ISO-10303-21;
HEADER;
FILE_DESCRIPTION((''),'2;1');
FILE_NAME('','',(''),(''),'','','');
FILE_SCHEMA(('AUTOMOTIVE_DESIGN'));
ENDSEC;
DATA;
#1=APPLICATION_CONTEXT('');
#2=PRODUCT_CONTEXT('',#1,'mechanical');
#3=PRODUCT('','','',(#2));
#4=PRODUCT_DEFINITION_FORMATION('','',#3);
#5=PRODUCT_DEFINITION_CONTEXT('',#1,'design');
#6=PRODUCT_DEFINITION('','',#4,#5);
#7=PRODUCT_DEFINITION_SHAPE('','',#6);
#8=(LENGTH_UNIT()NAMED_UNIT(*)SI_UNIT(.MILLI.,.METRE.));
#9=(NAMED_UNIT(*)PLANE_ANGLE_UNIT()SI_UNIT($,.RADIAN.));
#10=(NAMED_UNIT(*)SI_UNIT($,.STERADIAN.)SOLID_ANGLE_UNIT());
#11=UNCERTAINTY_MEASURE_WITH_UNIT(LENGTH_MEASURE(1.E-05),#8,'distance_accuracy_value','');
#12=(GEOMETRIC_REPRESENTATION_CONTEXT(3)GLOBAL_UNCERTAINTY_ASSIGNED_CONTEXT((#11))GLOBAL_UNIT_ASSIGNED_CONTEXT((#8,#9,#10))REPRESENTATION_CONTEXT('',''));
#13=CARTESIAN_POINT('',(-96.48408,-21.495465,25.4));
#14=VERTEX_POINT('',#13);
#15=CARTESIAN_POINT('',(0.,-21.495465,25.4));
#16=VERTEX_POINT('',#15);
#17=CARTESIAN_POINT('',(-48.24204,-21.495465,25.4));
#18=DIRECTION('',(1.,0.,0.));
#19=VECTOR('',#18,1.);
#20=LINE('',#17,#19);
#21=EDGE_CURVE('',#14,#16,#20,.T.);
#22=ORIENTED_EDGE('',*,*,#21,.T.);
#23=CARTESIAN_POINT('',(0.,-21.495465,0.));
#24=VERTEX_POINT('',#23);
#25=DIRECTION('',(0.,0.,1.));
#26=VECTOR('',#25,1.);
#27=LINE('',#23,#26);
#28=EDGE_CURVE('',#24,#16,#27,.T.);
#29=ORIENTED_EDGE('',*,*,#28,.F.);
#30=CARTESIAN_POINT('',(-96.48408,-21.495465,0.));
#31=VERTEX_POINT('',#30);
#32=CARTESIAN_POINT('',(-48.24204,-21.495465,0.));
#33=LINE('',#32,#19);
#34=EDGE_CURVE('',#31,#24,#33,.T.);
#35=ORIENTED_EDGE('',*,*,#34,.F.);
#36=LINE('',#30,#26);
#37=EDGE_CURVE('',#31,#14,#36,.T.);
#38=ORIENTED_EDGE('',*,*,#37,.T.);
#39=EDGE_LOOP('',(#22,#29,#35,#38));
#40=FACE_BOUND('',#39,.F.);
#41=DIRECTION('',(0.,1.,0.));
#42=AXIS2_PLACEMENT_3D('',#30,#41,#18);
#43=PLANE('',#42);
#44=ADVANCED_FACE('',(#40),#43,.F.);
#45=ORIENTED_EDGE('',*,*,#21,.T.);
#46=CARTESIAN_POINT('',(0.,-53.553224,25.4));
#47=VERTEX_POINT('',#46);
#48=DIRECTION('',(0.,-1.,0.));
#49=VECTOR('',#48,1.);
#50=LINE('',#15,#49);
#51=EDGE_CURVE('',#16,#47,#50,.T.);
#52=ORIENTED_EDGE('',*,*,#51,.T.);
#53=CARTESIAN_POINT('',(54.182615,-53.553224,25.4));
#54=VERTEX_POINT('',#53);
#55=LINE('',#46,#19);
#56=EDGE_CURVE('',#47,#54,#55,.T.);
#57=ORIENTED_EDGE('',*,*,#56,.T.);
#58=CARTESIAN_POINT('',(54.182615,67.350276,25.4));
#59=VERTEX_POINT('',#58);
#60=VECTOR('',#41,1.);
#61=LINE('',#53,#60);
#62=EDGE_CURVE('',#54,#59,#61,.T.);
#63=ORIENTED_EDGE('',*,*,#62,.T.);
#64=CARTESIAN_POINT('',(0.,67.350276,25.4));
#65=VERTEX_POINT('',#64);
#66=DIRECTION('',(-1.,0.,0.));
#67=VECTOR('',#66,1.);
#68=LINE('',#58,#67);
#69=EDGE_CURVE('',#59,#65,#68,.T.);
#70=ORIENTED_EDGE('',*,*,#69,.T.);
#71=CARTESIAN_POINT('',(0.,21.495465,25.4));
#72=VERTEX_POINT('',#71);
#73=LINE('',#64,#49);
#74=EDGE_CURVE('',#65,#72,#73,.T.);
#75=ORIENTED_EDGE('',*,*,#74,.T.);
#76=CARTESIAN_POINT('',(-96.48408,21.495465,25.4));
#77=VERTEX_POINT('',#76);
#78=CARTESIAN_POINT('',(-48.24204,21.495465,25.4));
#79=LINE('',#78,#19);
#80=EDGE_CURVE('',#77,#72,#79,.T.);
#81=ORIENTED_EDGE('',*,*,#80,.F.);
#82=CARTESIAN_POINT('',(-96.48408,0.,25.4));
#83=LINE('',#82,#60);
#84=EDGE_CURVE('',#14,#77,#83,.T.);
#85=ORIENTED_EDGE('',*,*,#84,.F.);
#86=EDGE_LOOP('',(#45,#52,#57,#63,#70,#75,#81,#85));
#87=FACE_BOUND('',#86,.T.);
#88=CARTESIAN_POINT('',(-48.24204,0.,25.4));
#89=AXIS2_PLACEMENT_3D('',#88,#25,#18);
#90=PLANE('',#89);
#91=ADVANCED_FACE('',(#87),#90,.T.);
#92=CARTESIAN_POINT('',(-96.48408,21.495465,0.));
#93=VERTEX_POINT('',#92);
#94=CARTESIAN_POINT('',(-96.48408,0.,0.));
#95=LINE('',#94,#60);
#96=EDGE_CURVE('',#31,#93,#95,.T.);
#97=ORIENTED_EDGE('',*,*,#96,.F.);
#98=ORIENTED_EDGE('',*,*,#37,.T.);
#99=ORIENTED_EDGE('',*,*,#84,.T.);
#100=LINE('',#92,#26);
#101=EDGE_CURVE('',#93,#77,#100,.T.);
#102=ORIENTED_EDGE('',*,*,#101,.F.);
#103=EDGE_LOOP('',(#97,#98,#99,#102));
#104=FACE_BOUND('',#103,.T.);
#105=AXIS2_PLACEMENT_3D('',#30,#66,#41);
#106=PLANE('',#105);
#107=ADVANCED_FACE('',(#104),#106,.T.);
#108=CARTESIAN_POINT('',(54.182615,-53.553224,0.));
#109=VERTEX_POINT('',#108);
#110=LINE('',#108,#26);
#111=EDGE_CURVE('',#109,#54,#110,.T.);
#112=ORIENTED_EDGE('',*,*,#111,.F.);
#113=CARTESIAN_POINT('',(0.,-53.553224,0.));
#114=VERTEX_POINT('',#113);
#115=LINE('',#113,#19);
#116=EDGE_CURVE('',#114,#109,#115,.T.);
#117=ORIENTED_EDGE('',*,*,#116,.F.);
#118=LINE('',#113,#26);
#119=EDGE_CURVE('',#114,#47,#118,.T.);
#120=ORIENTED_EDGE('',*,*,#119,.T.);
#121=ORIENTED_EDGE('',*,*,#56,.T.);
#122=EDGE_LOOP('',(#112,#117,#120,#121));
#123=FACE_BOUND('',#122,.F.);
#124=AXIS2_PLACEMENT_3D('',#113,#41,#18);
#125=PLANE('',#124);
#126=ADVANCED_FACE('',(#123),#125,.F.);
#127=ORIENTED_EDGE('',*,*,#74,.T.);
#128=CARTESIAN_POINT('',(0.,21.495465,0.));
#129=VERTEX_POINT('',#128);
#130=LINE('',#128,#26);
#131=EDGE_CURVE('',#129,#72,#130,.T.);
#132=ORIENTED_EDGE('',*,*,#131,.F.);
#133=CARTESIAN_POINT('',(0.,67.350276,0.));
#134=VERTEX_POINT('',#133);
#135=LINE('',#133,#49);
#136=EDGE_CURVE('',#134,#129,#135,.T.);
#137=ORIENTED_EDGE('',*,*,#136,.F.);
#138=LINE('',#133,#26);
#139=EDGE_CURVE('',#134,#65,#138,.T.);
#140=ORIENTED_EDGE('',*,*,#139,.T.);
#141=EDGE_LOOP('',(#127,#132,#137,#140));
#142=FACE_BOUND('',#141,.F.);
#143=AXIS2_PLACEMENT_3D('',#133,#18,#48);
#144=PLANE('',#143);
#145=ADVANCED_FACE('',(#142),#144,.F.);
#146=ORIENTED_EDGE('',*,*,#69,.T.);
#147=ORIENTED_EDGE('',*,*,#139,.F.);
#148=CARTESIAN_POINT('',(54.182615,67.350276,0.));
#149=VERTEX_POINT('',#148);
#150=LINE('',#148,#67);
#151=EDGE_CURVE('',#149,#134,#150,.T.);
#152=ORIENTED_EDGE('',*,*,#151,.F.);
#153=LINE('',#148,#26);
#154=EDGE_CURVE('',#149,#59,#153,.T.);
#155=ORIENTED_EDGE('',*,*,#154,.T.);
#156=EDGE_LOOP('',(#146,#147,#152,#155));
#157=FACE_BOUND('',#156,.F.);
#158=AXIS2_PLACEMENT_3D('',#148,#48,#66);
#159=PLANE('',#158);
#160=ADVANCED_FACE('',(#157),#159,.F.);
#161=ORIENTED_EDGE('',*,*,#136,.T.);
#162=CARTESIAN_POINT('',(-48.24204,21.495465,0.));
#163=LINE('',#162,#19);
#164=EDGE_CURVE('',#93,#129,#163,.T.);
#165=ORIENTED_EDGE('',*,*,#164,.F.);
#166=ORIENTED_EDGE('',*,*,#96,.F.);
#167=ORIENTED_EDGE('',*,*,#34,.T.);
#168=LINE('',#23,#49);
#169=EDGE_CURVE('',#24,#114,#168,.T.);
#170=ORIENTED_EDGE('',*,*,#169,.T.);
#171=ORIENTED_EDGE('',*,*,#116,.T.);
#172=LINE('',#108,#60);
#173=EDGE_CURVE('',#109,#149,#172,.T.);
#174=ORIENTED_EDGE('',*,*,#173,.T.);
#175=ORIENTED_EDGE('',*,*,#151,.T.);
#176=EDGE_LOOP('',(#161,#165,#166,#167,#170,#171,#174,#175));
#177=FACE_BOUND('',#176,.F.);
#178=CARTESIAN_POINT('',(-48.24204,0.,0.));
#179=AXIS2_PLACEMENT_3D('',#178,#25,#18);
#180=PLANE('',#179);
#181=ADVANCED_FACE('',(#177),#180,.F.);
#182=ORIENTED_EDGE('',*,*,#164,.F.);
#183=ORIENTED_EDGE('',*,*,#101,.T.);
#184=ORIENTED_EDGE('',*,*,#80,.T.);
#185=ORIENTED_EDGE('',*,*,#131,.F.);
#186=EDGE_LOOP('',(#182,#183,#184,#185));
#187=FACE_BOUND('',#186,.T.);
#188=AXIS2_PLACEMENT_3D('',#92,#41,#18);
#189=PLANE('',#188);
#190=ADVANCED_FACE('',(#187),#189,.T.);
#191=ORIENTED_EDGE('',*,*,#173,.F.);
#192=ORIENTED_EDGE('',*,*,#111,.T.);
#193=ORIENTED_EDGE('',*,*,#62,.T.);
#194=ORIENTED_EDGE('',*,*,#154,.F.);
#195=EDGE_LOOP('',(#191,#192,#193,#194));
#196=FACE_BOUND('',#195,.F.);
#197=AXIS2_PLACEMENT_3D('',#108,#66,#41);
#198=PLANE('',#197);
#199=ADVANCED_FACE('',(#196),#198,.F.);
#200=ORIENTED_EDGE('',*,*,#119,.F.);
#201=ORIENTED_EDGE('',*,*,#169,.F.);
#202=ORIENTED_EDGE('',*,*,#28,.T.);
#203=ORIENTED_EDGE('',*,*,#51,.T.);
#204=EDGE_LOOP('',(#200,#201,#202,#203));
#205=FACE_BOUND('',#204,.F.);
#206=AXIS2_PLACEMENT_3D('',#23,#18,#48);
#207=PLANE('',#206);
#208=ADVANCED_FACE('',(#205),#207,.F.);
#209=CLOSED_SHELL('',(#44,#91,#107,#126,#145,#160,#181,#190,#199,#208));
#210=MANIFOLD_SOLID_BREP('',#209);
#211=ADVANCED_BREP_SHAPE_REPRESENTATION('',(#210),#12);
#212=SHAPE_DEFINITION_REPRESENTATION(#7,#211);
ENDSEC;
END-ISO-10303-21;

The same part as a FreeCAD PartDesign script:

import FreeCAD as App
import Part
import Sketcher
Q = App.Units.Quantity

doc = App.newDocument("Part")
body = doc.addObject("PartDesign::Body", "Body")

sketch1 = body.newObject("Sketcher::SketchObject", "Sketch")
sketch1.AttachmentSupport = (doc.getObject("XY_Plane"), [""])
sketch1.MapMode = "FlatFace"
sketch1.addGeometry([
    Part.LineSegment(App.Vector(-96.48408, 21.495465, 0), App.Vector(-96.48408, -21.495465, 0)),
    Part.LineSegment(App.Vector(-96.48408, -21.495465, 0), App.Vector(0, -21.495465, 0)),
    Part.LineSegment(App.Vector(0, -21.495465, 0), App.Vector(0, -53.553224, 0)),
    Part.LineSegment(App.Vector(0, -53.553224, 0), App.Vector(54.182615, -53.553224, 0)),
    Part.LineSegment(App.Vector(54.182615, -53.553224, 0), App.Vector(54.182615, 67.350276, 0)),
    Part.LineSegment(App.Vector(54.182615, 67.350276, 0), App.Vector(0, 67.350276, 0)),
    Part.LineSegment(App.Vector(0, 67.350276, 0), App.Vector(0, 21.495465, 0)),
    Part.LineSegment(App.Vector(0, 21.495465, 0), App.Vector(-96.48408, 21.495465, 0)),
], False)
sketch1.addConstraint([
    Sketcher.Constraint("Coincident", 0, 2, 1, 1),
    Sketcher.Constraint("Coincident", 1, 2, 2, 1),
    Sketcher.Constraint("Coincident", 2, 2, 3, 1),
    Sketcher.Constraint("Coincident", 3, 2, 4, 1),
    Sketcher.Constraint("Coincident", 4, 2, 5, 1),
    Sketcher.Constraint("Coincident", 5, 2, 6, 1),
    Sketcher.Constraint("Coincident", 6, 2, 7, 1),
    Sketcher.Constraint("Coincident", 7, 2, 0, 1),
    Sketcher.Constraint("Vertical", 0),
    Sketcher.Constraint("Horizontal", 1),
    Sketcher.Constraint("Vertical", 2),
    Sketcher.Constraint("Horizontal", 3),
    Sketcher.Constraint("Vertical", 4),
    Sketcher.Constraint("Horizontal", 5),
    Sketcher.Constraint("Vertical", 6),
    Sketcher.Constraint("Horizontal", 7),
    Sketcher.Constraint("Symmetric", 1, 2, 6, 2, -1, 1),
    Sketcher.Constraint("PointOnObject", 1, 2, -2),
    Sketcher.Constraint("DistanceY", 4, 1, 4, 2, 120.9035),
    Sketcher.Constraint("DistanceX", 1, 1, 1, 2, 96.48408),
    Sketcher.Constraint("DistanceY", 0, 2, 0, 1, 42.99093),
    Sketcher.Constraint("DistanceY", 2, 2, 2, 1, 32.057759),
    Sketcher.Constraint("DistanceX", 3, 1, 3, 2, 54.182615),
])
pad1 = body.newObject("PartDesign::Pad", "Pad")
pad1.Profile = sketch1
pad1.Length = Q("1 in")

doc.recompute()
